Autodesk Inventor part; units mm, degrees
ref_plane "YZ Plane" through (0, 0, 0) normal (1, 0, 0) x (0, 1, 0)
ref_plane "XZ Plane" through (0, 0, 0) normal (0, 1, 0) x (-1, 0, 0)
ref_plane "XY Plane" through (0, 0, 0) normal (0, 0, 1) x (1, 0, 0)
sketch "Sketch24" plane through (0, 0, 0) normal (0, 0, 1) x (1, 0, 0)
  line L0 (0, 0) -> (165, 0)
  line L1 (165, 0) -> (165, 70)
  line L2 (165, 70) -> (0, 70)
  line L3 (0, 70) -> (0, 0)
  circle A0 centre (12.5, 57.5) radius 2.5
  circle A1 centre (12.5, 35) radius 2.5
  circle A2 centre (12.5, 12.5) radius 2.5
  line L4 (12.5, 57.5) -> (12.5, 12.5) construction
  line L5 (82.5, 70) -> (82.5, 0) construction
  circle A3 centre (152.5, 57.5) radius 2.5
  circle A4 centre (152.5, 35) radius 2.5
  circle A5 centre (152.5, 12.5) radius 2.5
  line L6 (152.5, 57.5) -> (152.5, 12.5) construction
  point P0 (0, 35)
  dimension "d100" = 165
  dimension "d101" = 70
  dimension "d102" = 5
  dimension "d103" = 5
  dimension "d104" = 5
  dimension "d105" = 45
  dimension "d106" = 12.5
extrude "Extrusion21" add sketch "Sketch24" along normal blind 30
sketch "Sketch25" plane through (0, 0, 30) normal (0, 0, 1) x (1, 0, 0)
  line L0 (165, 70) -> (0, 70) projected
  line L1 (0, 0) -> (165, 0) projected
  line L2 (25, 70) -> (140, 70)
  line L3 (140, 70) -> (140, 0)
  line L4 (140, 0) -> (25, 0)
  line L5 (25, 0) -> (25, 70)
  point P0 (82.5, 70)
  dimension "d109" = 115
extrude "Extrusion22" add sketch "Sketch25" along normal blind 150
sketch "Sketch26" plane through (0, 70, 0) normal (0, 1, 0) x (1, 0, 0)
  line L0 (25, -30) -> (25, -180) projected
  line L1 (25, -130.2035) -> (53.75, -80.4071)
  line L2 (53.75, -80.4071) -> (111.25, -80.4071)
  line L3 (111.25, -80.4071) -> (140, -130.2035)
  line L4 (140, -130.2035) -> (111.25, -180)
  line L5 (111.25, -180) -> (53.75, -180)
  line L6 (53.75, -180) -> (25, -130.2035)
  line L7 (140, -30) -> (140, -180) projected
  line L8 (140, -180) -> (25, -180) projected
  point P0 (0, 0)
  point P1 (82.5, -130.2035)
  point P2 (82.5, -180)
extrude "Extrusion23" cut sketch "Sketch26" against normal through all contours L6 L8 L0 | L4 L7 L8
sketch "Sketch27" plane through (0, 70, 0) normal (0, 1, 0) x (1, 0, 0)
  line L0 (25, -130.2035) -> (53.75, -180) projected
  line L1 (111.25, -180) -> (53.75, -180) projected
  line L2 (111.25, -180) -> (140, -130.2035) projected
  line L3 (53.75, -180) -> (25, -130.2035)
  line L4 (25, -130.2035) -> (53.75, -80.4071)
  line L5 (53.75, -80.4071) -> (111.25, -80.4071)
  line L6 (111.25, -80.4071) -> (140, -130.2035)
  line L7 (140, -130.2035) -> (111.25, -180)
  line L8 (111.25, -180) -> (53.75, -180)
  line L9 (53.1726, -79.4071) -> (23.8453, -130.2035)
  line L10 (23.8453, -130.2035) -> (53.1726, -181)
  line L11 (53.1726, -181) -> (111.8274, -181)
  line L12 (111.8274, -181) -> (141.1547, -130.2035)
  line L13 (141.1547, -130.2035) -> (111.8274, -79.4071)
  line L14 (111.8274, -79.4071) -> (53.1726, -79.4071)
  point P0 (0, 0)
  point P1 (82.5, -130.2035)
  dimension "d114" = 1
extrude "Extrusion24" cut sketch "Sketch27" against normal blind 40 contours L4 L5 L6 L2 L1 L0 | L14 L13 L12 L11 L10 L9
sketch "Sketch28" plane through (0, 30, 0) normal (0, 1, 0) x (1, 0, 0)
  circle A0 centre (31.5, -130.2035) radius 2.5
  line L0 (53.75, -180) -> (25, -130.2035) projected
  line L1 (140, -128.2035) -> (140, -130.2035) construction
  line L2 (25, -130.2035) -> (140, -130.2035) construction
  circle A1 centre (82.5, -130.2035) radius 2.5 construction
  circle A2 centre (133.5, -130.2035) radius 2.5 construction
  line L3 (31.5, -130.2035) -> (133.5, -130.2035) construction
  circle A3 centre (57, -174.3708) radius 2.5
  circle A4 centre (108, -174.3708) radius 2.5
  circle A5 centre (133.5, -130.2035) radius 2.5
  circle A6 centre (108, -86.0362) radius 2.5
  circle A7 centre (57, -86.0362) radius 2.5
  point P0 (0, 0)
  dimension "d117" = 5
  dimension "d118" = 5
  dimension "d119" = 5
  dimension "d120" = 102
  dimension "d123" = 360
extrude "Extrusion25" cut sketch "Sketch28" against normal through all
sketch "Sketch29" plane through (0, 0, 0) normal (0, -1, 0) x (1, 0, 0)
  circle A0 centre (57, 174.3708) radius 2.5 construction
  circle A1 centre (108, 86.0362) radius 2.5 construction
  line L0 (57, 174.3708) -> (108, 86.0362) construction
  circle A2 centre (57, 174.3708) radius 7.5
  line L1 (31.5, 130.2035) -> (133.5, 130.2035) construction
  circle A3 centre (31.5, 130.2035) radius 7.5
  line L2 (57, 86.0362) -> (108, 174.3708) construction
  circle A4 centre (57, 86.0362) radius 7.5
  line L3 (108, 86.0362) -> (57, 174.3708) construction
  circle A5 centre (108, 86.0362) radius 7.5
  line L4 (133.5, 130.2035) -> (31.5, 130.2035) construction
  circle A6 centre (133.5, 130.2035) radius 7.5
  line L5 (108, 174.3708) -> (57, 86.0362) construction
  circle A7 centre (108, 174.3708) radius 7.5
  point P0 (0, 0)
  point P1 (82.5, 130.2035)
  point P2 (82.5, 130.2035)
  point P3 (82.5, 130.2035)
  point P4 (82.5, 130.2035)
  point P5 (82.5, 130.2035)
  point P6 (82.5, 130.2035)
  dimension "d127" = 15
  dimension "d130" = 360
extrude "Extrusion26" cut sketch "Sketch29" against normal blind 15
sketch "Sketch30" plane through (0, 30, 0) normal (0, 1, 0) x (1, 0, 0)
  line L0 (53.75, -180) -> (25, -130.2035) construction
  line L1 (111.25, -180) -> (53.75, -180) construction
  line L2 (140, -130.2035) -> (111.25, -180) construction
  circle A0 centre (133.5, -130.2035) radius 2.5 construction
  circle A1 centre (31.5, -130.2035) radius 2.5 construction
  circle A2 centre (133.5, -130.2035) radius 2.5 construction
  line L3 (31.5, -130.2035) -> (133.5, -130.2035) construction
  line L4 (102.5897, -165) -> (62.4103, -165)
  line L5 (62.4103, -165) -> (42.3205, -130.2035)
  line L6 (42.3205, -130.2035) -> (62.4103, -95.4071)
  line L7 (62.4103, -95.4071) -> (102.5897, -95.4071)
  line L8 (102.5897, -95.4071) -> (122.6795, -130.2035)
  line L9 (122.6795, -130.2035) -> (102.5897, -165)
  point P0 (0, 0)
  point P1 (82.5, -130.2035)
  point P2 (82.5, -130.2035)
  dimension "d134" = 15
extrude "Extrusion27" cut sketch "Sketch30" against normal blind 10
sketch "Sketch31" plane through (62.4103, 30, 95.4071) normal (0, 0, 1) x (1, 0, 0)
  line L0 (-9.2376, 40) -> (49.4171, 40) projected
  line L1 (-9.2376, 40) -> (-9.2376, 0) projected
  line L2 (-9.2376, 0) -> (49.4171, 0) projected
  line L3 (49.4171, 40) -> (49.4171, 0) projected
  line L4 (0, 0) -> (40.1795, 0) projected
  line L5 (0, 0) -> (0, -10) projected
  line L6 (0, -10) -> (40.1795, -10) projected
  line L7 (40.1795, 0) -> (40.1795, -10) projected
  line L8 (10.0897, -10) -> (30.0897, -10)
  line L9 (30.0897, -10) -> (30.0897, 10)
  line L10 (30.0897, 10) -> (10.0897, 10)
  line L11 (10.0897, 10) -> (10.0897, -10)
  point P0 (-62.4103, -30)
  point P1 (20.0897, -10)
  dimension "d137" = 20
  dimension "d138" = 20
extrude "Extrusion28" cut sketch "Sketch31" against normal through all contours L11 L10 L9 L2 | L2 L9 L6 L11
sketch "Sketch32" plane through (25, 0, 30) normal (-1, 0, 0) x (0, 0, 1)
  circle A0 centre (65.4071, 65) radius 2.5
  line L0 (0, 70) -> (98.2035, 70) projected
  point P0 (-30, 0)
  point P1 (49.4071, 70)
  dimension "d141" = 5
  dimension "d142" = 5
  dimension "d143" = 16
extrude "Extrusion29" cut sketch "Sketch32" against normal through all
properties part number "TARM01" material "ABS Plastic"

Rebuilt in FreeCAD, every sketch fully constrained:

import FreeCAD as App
import Part
import Sketcher

V = App.Vector
Q = App.Units.Quantity


def add_polygon(sketch, points):
    """Adds a closed chain of lines whose ends are joined by coincident constraints."""
    first, n = sketch.GeometryCount, len(points)
    for a, b in zip(points, points[1:] + points[:1]):
        sketch.addGeometry(Part.LineSegment(App.Vector(*a, 0), App.Vector(*b, 0)), False)
    for i in range(n):
        sketch.addConstraint(Sketcher.Constraint("Coincident", first + i, 2, first + (i + 1) % n, 1))

doc = App.newDocument("Part")
body = doc.addObject("PartDesign::Body", "Body")

sketch1 = body.newObject("Sketcher::SketchObject", "Sketch")
sketch1.AttachmentSupport = (doc.getObject("XY_Plane"), [""])
sketch1.MapMode = "FlatFace"
add_polygon(sketch1, [(0, 70), (0, 0), (165, 0), (165, 70)])
sketch1.addGeometry(Part.Circle(V(12.5, 12.5, 0), V(0, 0, 1), 2.5), False)
sketch1.addGeometry(Part.Circle(V(152.5, 12.5, 0), V(0, 0, 1), 2.5), False)
sketch1.addGeometry(Part.Circle(V(12.5, 35, 0), V(0, 0, 1), 2.5), False)
sketch1.addGeometry(Part.Circle(V(12.5, 57.5, 0), V(0, 0, 1), 2.5), False)
sketch1.addGeometry(Part.Circle(V(152.5, 35, 0), V(0, 0, 1), 2.5), False)
sketch1.addGeometry(Part.Circle(V(152.5, 57.5, 0), V(0, 0, 1), 2.5), False)
sketch1.addConstraint([
    Sketcher.Constraint("Vertical", 0),
    Sketcher.Constraint("Horizontal", 1),
    Sketcher.Constraint("Vertical", 2),
    Sketcher.Constraint("Horizontal", 3),
    Sketcher.Constraint("Coincident", 0, 2, -1, 1),
    Sketcher.Constraint("Equal", 4, 5),
    Sketcher.Constraint("Equal", 5, 6),
    Sketcher.Constraint("Equal", 6, 7),
    Sketcher.Constraint("Equal", 7, 8),
    Sketcher.Constraint("Equal", 8, 9),
    Sketcher.Constraint("Horizontal", 4, 3, 5, 3),
    Sketcher.Constraint("Horizontal", 6, 3, 8, 3),
    Sketcher.Constraint("Horizontal", 7, 3, 9, 3),
    Sketcher.Constraint("Vertical", 4, 3, 6, 3),
    Sketcher.Constraint("Vertical", 6, 3, 7, 3),
    Sketcher.Constraint("Vertical", 5, 3, 8, 3),
    Sketcher.Constraint("Vertical", 8, 3, 9, 3),
    Sketcher.Constraint("Diameter", 4, Q("5 mm")),
    Sketcher.Constraint("DistanceX", 1, 1, 1, 2, Q("165 mm")),
    Sketcher.Constraint("DistanceY", 0, 2, 0, 1, Q("70 mm")),
    Sketcher.Constraint("DistanceY", 4, 3, 7, 3, Q("45 mm")),
    Sketcher.Constraint("DistanceX", -1, 1, 4, 3, Q("12.5 mm")),
    Sketcher.Constraint("DistanceY", -1, 1, 4, 3, Q("12.5 mm")),
    Sketcher.Constraint("DistanceX", 5, 3, 1, 2, Q("12.5 mm")),
    Sketcher.Constraint("DistanceY", -1, 1, 6, 3, Q("35 mm")),
])
pad1 = body.newObject("PartDesign::Pad", "Pad")
pad1.Profile = sketch1
pad1.Length = 30

sketch2 = body.newObject("Sketcher::SketchObject", "Sketch001")
sketch2.AttachmentSupport = (doc.getObject("XY_Plane"), [""])
sketch2.MapMode = "FlatFace"
sketch2.AttachmentOffset = App.Placement(V(0, 0, 30), App.Rotation())
add_polygon(sketch2, [(140, 0), (140, 70), (25, 70), (25, 0)])
sketch2.addConstraint([
    Sketcher.Constraint("Vertical", 0),
    Sketcher.Constraint("Horizontal", 1),
    Sketcher.Constraint("Vertical", 2),
    Sketcher.Constraint("Horizontal", 3),
    Sketcher.Constraint("PointOnObject", 2, 2, -1),
    Sketcher.Constraint("DistanceX", 1, 2, 1, 1, Q("115 mm")),
    Sketcher.Constraint("DistanceY", 0, 1, 0, 2, Q("70 mm")),
    Sketcher.Constraint("DistanceX", -1, 1, 0, 2, Q("140 mm")),
])
pad2 = body.newObject("PartDesign::Pad", "Pad001")
pad2.Profile = sketch2
pad2.Length = 150

sketch3 = body.newObject("Sketcher::SketchObject", "Sketch002")
sketch3.AttachmentSupport = (doc.getObject("XZ_Plane"), [""])
sketch3.MapMode = "FlatFace"
sketch3.AttachmentOffset = App.Placement(V(0, 0, -70), App.Rotation())
add_polygon(sketch3, [(54, 180), (25, 130), (25, 180)])
add_polygon(sketch3, [(140, 130), (111, 180), (140, 180)])
sketch3.addConstraint([
    Sketcher.Constraint("Vertical", 1),
    Sketcher.Constraint("Horizontal", 2),
    Sketcher.Constraint("Horizontal", 4),
    Sketcher.Constraint("Vertical", 5),
    Sketcher.Constraint("Horizontal", 2, 2, 3, 2),
    Sketcher.Constraint("Horizontal", 0, 2, 5, 2),
    Sketcher.Constraint("Equal", 2, 4),
    Sketcher.Constraint("Angle", 0, Q("-120 deg")),
    Sketcher.Constraint("DistanceX", -1, 1, 0, 2, Q("25 mm")),
    Sketcher.Constraint("DistanceY", -1, 1, 1, 2, Q("180 mm")),
    Sketcher.Constraint("DistanceX", -1, 1, 4, 2, Q("140 mm")),
    Sketcher.Constraint("Distance", 0, Q("57.5 mm")),
])
pocket1 = body.newObject("PartDesign::Pocket", "Pocket")
pocket1.Profile = sketch3
pocket1.Type = "ThroughAll"
pocket1.Reversed = True

sketch4 = body.newObject("Sketcher::SketchObject", "Sketch003")
sketch4.AttachmentSupport = (doc.getObject("XZ_Plane"), [""])
sketch4.MapMode = "FlatFace"
sketch4.AttachmentOffset = App.Placement(V(0, 0, -70), App.Rotation())
add_polygon(sketch4, [(112, 79), (53, 79), (24, 130), (53, 181), (112, 181), (141, 130)])
sketch4.addConstraint([
    Sketcher.Constraint("Horizontal", 0),
    Sketcher.Constraint("Horizontal", 3),
    Sketcher.Constraint("Parallel", 1, 4),
    Sketcher.Constraint("Parallel", 2, 5),
    Sketcher.Constraint("Horizontal", 1, 2, 4, 2),
    Sketcher.Constraint("Vertical", 0, 2, 2, 2),
    Sketcher.Constraint("Vertical", 3, 2, 5, 2),
    Sketcher.Constraint("Angle", 1, Q("120 deg")),
    Sketcher.Constraint("DistanceY", -1, 1, 2, 2, Q("181 mm")),
    Sketcher.Constraint("DistanceX", 0, 2, 0, 1, Q("58.6548 mm")),
    Sketcher.Constraint("DistanceY", -1, 1, 0, 2, Q("79.407 mm")),
    Sketcher.Constraint("DistanceX", -1, 1, 0, 2, Q("53.1726 mm")),
])
pocket2 = body.newObject("PartDesign::Pocket", "Pocket001")
pocket2.Profile = sketch4
pocket2.Length = 40
pocket2.Reversed = True

sketch5 = body.newObject("Sketcher::SketchObject", "Sketch004")
sketch5.AttachmentSupport = (doc.getObject("XZ_Plane"), [""])
sketch5.MapMode = "FlatFace"
sketch5.AttachmentOffset = App.Placement(V(0, 0, -30), App.Rotation())
sketch5.addGeometry([
    Part.Circle(V(31.5, 130.2, 0), V(0, 0, 1), 2.5),
    Part.Circle(V(57, 174.4, 0), V(0, 0, 1), 2.5),
    Part.Circle(V(108, 174.4, 0), V(0, 0, 1), 2.5),
    Part.Circle(V(133.5, 130.2, 0), V(0, 0, 1), 2.5),
    Part.Circle(V(108, 86, 0), V(0, 0, 1), 2.5),
    Part.Circle(V(57, 86, 0), V(0, 0, 1), 2.5),
], False)
sketch5.addConstraint([
    Sketcher.Constraint("Equal", 0, 1),
    Sketcher.Constraint("Equal", 1, 2),
    Sketcher.Constraint("Equal", 2, 3),
    Sketcher.Constraint("Equal", 3, 4),
    Sketcher.Constraint("Equal", 4, 5),
    Sketcher.Constraint("Horizontal", 1, 3, 2, 3),
    Sketcher.Constraint("Horizontal", 0, 3, 3, 3),
    Sketcher.Constraint("Horizontal", 4, 3, 5, 3),
    Sketcher.Constraint("Vertical", 2, 3, 4, 3),
    Sketcher.Constraint("Vertical", 1, 3, 5, 3),
    Sketcher.Constraint("Diameter", 0, Q("5 mm")),
    Sketcher.Constraint("DistanceX", 0, 3, 3, 3, Q("102 mm")),
    Sketcher.Constraint("DistanceX", -1, 1, 1, 3, Q("57 mm")),
    Sketcher.Constraint("DistanceX", -1, 1, 2, 3, Q("108 mm")),
    Sketcher.Constraint("DistanceX", -1, 1, 0, 3, Q("31.5 mm")),
    Sketcher.Constraint("DistanceY", -1, 1, 0, 3, Q("130.2035 mm")),
    Sketcher.Constraint("DistanceY", -1, 1, 1, 3, Q("174.3708 mm")),
    Sketcher.Constraint("DistanceY", -1, 1, 4, 3, Q("86.0362 mm")),
])
pocket3 = body.newObject("PartDesign::Pocket", "Pocket002")
pocket3.Profile = sketch5
pocket3.Type = "ThroughAll"
pocket3.Reversed = True

sketch6 = body.newObject("Sketcher::SketchObject", "Sketch005")
sketch6.AttachmentSupport = (doc.getObject("XZ_Plane"), [""])
sketch6.MapMode = "FlatFace"
sketch6.addGeometry([
    Part.Circle(V(57, 174, 0), V(0, 0, 1), 8),
    Part.Circle(V(32, 130, 0), V(0, 0, 1), 8),
    Part.Circle(V(57, 86, 0), V(0, 0, 1), 8),
    Part.Circle(V(108, 86, 0), V(0, 0, 1), 8),
    Part.Circle(V(134, 130, 0), V(0, 0, 1), 8),
    Part.Circle(V(108, 174, 0), V(0, 0, 1), 8),
], False)
sketch6.addConstraint([
    Sketcher.Constraint("Equal", 0, 1),
    Sketcher.Constraint("Equal", 1, 2),
    Sketcher.Constraint("Equal", 2, 3),
    Sketcher.Constraint("Equal", 3, 4),
    Sketcher.Constraint("Equal", 4, 5),
    Sketcher.Constraint("Horizontal", 2, 3, 3, 3),
    Sketcher.Constraint("Horizontal", 1, 3, 4, 3),
    Sketcher.Constraint("Horizontal", 0, 3, 5, 3),
    Sketcher.Constraint("Vertical", 0, 3, 2, 3),
    Sketcher.Constraint("Vertical", 3, 3, 5, 3),
    Sketcher.Constraint("Diameter", 0, Q("15 mm")),
    Sketcher.Constraint("DistanceX", -1, 1, 0, 3, Q("57 mm")),
    Sketcher.Constraint("DistanceX", -1, 1, 3, 3, Q("108 mm")),
    Sketcher.Constraint("DistanceX", 1, 3, 4, 3, Q("102 mm")),
    Sketcher.Constraint("DistanceX", -1, 1, 1, 3, Q("31.5 mm")),
    Sketcher.Constraint("DistanceY", -1, 1, 0, 3, Q("174.3708 mm")),
    Sketcher.Constraint("DistanceY", -1, 1, 1, 3, Q("130.2035 mm")),
    Sketcher.Constraint("DistanceY", -1, 1, 2, 3, Q("86.0362 mm")),
])
pocket4 = body.newObject("PartDesign::Pocket", "Pocket003")
pocket4.Profile = sketch6
pocket4.Length = 15

sketch7 = body.newObject("Sketcher::SketchObject", "Sketch006")
sketch7.AttachmentSupport = (doc.getObject("XZ_Plane"), [""])
sketch7.MapMode = "FlatFace"
sketch7.AttachmentOffset = App.Placement(V(0, 0, -30), App.Rotation())
add_polygon(sketch7, [(62, 165), (103, 165), (123, 130), (103, 95), (62, 95), (42, 130)])
sketch7.addConstraint([
    Sketcher.Constraint("Horizontal", 0),
    Sketcher.Constraint("Horizontal", 3),
    Sketcher.Constraint("Parallel", 1, 4),
    Sketcher.Constraint("Parallel", 2, 5),
    Sketcher.Constraint("Horizontal", 1, 2, 4, 2),
    Sketcher.Constraint("Vertical", 0, 2, 2, 2),
    Sketcher.Constraint("Vertical", 3, 2, 5, 2),
    Sketcher.Constraint("Angle", 1, Q("-60 deg")),
    Sketcher.Constraint("DistanceY", -1, 1, 0, 2, Q("165 mm")),
    Sketcher.Constraint("DistanceX", 0, 1, 0, 2, Q("40.1794 mm")),
    Sketcher.Constraint("DistanceY", -1, 1, 2, 2, Q("95.407 mm")),
    Sketcher.Constraint("DistanceX", -1, 1, 0, 2, Q("102.5897 mm")),
])
pocket5 = body.newObject("PartDesign::Pocket", "Pocket004")
pocket5.Profile = sketch7
pocket5.Length = 10
pocket5.Reversed = True

sketch8 = body.newObject("Sketcher::SketchObject", "Sketch007")
sketch8.AttachmentSupport = (doc.getObject("XY_Plane"), [""])
sketch8.MapMode = "FlatFace"
sketch8.AttachmentOffset = App.Placement(V(0, 0, 95.4071), App.Rotation())
add_polygon(sketch8, [(72, 40), (72, 20), (92, 20), (92, 40)])
sketch8.addConstraint([
    Sketcher.Constraint("Vertical", 0),
    Sketcher.Constraint("Horizontal", 1),
    Sketcher.Constraint("Vertical", 2),
    Sketcher.Constraint("Horizontal", 3),
    Sketcher.Constraint("Equal", 3, 0),
    Sketcher.Constraint("DistanceX", 1, 1, 1, 2, Q("20 mm")),
    Sketcher.Constraint("DistanceY", -1, 1, 0, 2, Q("20 mm")),
    Sketcher.Constraint("DistanceX", -1, 1, 0, 2, Q("72.5 mm")),
])
pocket6 = body.newObject("PartDesign::Pocket", "Pocket005")
pocket6.Profile = sketch8
pocket6.Type = "ThroughAll"

sketch9 = body.newObject("Sketcher::SketchObject", "Sketch008")
sketch9.AttachmentSupport = (doc.getObject("YZ_Plane"), [""])
sketch9.MapMode = "FlatFace"
sketch9.AttachmentOffset = App.Placement(V(0, 0, 25), App.Rotation())
sketch9.addGeometry(Part.Circle(V(65, 95.4, 0), V(0, 0, 1), 2.5), False)
sketch9.addConstraint([
    Sketcher.Constraint("Diameter", 0, Q("5 mm")),
    Sketcher.Constraint("DistanceX", -1, 1, 0, 3, Q("65 mm")),
    Sketcher.Constraint("DistanceY", -1, 1, 0, 3, Q("95.407 mm")),
])
pocket7 = body.newObject("PartDesign::Pocket", "Pocket006")
pocket7.Profile = sketch9
pocket7.Type = "ThroughAll"
pocket7.Reversed = True

doc.recompute()
